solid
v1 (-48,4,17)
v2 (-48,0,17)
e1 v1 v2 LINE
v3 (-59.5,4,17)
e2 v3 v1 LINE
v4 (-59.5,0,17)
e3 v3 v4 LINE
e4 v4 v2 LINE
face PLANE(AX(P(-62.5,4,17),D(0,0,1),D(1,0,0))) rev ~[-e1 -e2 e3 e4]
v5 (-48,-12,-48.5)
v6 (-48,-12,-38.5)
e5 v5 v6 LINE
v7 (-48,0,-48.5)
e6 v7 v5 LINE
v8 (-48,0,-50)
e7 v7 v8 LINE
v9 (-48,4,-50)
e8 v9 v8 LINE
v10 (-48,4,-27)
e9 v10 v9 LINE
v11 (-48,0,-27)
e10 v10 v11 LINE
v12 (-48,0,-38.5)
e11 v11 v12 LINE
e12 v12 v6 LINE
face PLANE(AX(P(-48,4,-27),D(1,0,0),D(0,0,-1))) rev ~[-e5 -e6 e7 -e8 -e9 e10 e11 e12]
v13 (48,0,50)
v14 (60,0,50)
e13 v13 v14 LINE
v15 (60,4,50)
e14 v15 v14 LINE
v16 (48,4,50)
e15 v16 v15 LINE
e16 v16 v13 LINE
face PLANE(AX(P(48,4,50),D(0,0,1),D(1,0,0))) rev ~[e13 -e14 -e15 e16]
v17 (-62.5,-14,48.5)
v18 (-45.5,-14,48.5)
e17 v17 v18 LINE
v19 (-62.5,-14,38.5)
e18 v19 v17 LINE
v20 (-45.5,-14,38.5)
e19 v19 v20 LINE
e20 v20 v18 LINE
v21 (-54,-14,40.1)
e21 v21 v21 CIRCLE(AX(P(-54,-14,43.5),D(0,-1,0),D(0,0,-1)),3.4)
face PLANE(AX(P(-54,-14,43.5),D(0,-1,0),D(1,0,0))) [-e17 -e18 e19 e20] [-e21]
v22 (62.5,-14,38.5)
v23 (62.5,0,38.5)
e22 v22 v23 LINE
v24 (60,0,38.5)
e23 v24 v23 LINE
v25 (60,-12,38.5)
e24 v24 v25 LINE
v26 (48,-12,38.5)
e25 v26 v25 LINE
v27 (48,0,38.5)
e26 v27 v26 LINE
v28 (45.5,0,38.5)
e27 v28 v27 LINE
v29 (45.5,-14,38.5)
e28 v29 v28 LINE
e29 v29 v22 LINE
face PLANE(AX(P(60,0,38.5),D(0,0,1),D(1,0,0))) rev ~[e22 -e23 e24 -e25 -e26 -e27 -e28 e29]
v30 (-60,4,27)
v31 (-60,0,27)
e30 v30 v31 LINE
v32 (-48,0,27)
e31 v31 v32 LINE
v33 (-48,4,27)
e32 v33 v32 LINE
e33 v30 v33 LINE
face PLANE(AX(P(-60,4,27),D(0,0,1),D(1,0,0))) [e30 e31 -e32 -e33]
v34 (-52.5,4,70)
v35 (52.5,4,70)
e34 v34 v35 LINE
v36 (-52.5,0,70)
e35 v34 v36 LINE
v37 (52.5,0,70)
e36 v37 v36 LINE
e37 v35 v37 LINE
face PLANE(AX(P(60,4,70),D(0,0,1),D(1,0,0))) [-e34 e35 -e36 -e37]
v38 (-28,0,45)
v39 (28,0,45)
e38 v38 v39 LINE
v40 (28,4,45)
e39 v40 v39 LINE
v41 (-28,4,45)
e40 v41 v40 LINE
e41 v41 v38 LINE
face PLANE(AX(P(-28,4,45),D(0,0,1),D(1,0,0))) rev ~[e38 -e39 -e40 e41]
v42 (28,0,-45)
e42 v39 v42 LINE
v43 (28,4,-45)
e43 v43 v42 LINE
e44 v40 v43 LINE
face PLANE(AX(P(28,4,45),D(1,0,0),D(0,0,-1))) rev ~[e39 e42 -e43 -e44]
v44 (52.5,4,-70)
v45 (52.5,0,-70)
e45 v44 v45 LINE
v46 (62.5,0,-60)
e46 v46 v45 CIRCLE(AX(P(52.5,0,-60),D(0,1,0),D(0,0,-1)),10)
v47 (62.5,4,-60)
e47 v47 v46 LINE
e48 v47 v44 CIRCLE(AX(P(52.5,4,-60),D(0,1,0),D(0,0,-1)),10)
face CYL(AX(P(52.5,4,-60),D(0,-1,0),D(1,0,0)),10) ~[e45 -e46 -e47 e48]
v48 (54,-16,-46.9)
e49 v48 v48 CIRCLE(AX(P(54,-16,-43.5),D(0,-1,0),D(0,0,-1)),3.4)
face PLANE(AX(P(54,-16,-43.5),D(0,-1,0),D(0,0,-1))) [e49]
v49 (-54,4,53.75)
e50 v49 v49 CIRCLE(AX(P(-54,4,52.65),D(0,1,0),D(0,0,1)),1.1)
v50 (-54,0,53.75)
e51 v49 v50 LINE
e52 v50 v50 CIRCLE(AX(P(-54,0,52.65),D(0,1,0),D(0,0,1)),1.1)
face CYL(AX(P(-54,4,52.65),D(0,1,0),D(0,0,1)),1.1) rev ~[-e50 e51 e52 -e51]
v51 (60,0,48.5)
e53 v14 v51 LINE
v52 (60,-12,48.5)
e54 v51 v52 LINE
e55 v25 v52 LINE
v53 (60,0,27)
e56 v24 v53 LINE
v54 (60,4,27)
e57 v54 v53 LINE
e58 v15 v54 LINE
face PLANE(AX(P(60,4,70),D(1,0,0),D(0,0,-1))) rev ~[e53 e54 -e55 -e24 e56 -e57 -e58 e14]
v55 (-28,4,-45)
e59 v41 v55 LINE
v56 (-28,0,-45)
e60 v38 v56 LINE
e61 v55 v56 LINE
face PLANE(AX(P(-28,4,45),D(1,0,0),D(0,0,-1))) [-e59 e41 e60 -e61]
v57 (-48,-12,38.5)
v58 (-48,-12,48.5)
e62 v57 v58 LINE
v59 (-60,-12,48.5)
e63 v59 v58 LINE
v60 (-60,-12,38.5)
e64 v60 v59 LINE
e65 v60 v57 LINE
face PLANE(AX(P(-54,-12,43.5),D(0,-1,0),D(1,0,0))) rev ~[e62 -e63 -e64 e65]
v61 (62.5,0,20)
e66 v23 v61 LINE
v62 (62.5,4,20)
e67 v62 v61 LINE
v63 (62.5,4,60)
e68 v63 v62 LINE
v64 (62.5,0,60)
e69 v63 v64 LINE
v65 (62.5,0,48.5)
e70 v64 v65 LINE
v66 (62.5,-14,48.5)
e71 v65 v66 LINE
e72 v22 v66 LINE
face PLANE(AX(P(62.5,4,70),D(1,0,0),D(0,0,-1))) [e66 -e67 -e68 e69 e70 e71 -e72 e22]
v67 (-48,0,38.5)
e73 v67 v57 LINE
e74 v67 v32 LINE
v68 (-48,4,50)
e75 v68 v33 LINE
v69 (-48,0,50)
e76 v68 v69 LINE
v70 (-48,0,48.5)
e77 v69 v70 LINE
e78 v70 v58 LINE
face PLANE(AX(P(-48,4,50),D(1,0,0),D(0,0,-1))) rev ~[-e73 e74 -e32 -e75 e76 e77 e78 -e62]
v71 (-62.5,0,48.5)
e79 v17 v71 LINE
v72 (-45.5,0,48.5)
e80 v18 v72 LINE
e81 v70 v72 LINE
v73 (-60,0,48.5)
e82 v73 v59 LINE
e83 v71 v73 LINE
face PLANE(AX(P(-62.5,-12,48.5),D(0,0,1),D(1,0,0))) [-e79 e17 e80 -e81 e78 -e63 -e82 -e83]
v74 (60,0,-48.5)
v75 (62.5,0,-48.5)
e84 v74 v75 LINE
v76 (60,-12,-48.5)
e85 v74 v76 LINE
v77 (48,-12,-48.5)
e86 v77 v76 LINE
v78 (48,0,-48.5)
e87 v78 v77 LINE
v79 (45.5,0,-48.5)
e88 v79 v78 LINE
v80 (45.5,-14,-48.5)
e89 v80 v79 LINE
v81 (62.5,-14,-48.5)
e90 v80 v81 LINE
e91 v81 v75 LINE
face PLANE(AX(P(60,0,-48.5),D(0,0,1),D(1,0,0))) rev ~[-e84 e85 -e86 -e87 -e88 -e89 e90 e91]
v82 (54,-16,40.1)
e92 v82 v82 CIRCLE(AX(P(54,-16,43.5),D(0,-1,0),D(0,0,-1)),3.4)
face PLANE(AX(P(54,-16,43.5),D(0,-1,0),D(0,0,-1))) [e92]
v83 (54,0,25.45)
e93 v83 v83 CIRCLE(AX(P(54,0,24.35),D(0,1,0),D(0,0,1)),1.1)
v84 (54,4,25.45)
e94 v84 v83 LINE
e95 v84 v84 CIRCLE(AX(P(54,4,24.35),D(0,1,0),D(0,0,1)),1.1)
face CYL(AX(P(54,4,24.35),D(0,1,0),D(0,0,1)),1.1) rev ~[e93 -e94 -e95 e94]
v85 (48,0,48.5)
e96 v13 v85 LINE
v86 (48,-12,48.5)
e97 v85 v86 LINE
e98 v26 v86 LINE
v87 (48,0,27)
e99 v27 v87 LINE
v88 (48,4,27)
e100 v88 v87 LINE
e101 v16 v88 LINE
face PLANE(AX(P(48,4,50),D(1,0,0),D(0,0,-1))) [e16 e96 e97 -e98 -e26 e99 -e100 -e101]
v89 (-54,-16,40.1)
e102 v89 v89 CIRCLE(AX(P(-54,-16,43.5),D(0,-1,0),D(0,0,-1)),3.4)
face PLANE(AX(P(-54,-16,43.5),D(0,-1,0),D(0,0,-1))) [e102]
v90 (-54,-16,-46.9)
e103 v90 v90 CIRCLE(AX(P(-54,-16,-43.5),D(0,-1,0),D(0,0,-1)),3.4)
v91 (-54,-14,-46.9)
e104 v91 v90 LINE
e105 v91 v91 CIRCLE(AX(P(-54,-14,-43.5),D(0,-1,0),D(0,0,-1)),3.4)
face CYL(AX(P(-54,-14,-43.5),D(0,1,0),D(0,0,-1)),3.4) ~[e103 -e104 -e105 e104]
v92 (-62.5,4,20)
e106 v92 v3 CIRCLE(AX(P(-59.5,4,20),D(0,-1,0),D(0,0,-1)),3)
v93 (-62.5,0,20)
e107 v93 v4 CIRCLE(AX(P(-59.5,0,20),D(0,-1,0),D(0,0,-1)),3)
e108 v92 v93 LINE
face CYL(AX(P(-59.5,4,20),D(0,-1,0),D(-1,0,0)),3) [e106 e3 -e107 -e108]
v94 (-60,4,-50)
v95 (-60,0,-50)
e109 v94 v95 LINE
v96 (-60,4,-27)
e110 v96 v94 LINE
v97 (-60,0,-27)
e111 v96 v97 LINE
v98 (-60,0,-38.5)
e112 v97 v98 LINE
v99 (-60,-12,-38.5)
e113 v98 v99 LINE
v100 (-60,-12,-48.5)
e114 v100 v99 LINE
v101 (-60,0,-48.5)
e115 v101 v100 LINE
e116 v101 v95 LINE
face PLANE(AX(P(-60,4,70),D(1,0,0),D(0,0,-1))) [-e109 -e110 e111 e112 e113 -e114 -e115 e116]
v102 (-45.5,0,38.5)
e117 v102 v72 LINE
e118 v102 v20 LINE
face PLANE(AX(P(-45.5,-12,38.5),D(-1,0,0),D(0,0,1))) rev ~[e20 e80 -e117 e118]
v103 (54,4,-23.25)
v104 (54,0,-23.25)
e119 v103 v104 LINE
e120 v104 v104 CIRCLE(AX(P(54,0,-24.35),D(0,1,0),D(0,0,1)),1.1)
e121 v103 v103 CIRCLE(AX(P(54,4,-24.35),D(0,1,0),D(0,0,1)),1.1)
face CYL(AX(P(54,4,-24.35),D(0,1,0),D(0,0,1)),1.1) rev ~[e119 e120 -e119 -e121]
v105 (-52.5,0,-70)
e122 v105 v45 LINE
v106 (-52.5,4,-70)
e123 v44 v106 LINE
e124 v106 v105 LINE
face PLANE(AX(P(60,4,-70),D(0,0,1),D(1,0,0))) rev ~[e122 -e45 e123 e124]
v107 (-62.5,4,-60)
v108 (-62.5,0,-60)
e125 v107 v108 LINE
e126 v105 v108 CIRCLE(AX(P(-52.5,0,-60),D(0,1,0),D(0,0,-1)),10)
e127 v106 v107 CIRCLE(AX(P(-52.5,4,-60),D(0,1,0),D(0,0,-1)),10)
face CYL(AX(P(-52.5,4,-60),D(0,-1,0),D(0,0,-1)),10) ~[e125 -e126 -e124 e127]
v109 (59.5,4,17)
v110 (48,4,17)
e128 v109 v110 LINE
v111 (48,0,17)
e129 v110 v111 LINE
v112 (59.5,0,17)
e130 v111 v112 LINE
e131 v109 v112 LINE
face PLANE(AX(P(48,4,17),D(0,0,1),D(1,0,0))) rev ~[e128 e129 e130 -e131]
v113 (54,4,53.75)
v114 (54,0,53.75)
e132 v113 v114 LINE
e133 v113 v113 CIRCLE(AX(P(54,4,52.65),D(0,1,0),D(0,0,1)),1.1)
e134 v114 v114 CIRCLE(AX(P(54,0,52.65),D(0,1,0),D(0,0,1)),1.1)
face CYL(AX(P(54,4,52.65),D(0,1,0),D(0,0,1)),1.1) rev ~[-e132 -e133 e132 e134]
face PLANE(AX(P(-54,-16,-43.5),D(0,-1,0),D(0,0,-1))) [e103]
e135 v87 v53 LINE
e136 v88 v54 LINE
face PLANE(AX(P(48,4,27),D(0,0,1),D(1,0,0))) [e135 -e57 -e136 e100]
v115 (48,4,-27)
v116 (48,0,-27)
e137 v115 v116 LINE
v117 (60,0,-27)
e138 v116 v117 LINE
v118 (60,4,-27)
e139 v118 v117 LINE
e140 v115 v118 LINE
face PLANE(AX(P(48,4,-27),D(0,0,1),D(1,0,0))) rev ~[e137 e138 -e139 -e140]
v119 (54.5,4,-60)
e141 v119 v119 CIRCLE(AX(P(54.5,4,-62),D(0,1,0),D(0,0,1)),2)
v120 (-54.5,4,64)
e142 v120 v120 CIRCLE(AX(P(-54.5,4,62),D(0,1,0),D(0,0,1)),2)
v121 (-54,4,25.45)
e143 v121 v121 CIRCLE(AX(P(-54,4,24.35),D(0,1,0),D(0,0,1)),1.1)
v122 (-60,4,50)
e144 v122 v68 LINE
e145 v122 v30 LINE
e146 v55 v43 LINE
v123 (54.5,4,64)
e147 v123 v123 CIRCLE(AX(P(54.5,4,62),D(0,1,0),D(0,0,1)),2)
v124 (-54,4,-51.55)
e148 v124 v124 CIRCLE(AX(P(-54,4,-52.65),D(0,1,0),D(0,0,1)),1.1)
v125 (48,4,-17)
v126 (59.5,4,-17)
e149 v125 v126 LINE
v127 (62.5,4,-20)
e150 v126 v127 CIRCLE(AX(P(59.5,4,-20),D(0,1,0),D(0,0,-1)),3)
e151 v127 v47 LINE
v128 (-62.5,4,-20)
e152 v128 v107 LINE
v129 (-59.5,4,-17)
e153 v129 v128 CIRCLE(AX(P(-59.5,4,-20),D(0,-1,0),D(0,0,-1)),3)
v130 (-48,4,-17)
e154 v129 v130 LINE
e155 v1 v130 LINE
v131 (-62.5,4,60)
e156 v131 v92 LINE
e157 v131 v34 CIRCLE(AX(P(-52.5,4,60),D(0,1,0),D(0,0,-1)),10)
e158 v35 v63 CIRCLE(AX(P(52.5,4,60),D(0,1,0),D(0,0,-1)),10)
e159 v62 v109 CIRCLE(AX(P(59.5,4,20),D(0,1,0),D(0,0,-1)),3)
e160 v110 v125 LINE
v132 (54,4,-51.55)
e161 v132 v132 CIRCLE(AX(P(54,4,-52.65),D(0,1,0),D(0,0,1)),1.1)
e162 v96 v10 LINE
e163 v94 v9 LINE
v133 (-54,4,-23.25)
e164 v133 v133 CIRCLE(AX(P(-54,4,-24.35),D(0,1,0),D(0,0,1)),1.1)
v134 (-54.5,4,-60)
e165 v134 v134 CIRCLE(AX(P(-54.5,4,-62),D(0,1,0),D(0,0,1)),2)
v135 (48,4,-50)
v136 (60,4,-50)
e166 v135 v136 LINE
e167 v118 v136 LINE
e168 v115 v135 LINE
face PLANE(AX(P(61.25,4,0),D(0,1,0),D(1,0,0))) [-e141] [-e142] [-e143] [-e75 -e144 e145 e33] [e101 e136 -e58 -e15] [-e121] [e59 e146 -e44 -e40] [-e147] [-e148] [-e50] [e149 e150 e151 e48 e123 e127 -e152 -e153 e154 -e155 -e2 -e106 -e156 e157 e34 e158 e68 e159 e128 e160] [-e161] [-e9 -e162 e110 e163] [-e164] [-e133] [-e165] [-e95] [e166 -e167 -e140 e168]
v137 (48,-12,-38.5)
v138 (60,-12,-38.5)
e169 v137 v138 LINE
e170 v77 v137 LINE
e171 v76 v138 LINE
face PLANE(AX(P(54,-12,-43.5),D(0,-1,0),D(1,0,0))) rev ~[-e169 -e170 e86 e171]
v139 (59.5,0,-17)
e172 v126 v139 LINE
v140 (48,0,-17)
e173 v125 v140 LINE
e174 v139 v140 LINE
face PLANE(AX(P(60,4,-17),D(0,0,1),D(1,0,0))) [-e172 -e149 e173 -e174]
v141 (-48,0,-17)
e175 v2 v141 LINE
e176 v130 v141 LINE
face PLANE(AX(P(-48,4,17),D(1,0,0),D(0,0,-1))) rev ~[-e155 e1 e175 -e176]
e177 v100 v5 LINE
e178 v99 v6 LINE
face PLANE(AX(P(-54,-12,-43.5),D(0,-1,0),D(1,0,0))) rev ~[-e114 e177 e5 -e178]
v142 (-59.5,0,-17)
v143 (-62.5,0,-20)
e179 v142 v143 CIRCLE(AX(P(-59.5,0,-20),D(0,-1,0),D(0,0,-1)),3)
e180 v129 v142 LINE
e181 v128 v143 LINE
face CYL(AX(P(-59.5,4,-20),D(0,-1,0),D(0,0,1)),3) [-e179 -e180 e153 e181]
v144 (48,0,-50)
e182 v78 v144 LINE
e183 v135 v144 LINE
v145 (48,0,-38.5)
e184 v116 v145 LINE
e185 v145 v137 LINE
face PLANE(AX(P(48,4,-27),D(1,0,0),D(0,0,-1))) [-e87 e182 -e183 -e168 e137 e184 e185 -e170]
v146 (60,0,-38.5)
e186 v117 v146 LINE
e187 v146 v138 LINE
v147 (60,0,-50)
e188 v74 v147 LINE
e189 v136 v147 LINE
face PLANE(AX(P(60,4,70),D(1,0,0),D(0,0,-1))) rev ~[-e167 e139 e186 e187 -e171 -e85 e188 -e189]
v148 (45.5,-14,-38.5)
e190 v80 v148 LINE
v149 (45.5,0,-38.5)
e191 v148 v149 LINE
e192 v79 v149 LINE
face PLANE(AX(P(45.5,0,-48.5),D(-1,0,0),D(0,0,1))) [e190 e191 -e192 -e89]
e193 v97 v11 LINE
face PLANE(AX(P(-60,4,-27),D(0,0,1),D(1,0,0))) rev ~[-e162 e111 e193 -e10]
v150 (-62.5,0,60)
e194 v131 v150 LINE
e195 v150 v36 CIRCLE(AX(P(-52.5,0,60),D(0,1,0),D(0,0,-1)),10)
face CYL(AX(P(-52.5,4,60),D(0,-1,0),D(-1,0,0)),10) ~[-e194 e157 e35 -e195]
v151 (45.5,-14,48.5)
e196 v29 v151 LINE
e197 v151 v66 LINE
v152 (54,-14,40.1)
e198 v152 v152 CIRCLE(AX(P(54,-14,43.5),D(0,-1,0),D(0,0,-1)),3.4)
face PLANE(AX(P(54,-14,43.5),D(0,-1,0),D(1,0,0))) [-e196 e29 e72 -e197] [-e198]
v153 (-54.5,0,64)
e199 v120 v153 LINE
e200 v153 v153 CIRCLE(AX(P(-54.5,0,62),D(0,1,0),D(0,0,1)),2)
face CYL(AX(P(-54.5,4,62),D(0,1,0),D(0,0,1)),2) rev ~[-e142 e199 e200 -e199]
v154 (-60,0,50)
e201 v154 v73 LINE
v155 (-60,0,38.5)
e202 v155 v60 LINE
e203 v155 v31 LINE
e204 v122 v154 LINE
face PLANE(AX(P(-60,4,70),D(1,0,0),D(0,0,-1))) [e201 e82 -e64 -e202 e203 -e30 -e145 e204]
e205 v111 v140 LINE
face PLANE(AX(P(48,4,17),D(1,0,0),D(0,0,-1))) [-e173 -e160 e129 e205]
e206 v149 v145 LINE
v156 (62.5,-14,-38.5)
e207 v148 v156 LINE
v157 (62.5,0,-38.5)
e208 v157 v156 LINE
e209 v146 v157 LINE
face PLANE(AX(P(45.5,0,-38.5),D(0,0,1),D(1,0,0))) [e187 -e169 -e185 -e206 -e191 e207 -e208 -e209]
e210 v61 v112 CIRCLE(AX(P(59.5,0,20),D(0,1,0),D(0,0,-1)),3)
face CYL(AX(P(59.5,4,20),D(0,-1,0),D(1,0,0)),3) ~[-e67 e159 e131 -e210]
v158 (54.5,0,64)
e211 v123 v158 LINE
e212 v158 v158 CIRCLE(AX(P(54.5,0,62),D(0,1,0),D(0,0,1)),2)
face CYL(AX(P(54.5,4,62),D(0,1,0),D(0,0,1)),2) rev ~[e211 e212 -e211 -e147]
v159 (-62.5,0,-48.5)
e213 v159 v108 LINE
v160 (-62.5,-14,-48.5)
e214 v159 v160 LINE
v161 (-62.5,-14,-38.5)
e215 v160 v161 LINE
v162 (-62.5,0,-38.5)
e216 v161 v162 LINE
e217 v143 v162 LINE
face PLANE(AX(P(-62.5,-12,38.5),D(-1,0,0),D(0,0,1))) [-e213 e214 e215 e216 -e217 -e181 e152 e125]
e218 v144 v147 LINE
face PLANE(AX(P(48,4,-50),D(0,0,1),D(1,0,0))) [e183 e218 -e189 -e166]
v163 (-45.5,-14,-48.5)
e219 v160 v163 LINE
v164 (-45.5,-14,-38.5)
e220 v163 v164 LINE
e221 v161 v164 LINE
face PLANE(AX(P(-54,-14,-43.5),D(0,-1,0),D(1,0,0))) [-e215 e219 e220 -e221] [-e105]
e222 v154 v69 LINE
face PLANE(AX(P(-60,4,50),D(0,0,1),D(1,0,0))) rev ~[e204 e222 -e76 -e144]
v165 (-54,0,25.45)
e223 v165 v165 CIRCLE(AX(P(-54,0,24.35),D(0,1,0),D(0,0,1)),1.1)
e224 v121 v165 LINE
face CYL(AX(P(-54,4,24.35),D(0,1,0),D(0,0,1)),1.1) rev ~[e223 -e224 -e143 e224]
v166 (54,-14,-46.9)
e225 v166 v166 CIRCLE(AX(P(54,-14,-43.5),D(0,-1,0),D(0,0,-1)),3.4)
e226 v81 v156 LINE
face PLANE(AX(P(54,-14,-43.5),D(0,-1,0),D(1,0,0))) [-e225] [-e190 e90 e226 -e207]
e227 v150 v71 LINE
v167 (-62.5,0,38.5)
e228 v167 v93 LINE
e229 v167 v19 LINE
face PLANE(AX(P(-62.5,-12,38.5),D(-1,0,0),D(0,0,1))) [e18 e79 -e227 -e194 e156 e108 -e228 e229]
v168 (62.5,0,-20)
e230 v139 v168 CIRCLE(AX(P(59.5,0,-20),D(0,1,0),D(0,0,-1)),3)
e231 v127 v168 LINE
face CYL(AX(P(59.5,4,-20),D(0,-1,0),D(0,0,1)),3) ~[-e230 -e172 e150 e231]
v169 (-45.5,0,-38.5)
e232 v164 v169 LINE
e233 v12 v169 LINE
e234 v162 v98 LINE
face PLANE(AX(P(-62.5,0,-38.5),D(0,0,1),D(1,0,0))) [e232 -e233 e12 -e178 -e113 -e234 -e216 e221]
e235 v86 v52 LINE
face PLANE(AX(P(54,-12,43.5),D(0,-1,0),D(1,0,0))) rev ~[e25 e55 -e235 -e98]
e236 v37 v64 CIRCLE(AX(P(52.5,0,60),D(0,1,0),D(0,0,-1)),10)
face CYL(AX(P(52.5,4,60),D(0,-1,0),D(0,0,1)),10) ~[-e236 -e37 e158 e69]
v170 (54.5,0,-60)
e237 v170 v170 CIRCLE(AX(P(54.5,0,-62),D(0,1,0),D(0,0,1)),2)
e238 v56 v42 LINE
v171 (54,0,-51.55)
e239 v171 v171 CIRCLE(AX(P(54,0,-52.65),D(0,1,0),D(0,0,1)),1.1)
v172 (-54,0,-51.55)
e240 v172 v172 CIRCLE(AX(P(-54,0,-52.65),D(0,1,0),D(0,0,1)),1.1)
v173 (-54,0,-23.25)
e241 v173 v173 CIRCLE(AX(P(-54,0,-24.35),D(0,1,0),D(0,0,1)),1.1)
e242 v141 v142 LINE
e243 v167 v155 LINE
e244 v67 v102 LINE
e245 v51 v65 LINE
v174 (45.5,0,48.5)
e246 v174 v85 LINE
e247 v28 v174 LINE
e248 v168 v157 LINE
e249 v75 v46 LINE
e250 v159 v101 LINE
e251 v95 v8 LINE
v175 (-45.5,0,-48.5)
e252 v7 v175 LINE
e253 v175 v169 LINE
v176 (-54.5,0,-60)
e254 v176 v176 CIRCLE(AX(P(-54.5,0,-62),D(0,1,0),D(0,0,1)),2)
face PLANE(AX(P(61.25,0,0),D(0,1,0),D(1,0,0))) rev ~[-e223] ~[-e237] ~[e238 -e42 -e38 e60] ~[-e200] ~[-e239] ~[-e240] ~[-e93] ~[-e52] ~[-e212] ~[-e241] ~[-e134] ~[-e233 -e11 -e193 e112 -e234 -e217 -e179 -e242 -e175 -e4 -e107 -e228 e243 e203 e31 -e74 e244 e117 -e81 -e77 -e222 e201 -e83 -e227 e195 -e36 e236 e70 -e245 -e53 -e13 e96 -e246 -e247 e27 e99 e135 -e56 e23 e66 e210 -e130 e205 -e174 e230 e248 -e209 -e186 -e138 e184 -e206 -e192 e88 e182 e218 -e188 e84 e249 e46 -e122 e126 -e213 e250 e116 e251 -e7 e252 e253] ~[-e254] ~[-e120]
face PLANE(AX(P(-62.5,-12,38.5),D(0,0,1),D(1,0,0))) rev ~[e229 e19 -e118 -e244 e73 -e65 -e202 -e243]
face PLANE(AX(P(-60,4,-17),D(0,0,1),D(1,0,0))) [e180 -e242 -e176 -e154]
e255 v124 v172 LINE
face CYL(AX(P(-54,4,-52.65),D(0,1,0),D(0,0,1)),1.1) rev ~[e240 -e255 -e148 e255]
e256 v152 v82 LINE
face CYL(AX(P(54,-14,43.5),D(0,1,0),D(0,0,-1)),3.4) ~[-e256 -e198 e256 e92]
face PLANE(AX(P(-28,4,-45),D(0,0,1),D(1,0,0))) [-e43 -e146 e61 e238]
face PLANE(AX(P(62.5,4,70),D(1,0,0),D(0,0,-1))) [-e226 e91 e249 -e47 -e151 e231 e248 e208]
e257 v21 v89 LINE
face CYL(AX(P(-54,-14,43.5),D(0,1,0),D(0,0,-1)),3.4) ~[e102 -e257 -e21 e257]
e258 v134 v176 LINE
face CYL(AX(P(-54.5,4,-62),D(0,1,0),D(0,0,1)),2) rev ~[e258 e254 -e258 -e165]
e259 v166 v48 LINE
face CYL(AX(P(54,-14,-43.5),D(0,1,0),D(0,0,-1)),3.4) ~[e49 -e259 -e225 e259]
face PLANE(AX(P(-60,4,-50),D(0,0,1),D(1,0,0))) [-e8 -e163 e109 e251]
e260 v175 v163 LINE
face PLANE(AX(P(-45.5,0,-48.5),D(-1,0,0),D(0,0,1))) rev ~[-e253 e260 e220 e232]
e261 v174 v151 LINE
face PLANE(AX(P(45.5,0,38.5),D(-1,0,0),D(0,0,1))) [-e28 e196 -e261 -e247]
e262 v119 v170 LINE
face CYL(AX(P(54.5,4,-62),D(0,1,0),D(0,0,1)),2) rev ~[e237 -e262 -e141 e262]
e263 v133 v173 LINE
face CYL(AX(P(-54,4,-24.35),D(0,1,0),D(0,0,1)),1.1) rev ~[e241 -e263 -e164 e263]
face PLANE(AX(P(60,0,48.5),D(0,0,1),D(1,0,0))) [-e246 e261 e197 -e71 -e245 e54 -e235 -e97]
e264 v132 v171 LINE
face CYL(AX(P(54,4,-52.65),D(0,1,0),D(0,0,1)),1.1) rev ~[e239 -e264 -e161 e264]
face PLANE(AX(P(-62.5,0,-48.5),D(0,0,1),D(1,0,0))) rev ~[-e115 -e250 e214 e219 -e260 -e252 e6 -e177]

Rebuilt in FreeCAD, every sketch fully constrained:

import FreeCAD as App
import Part
import Sketcher

V = App.Vector
Q = App.Units.Quantity


def edges_at(feature, points):
    """Names of the edges that pass closest to the given points."""
    edges = feature.Shape.Edges
    near = lambda p: min(range(len(edges)), key=lambda i: edges[i].distToShape(Part.Vertex(*p))[0])
    return sorted({f"Edge{near(p) + 1}" for p in points})


def add_polygon(sketch, points):
    """Adds a closed chain of lines whose ends are joined by coincident constraints."""
    first, n = sketch.GeometryCount, len(points)
    for a, b in zip(points, points[1:] + points[:1]):
        sketch.addGeometry(Part.LineSegment(App.Vector(*a, 0), App.Vector(*b, 0)), False)
    for i in range(n):
        sketch.addConstraint(Sketcher.Constraint("Coincident", first + i, 2, first + (i + 1) % n, 1))

doc = App.newDocument("Part")
body = doc.addObject("PartDesign::Body", "Body")

sketch1 = body.newObject("Sketcher::SketchObject", "Sketch")
sketch1.AttachmentSupport = (doc.getObject("XZ_Plane"), [""])
sketch1.MapMode = "FlatFace"
add_polygon(sketch1, [(-60, -70), (-60, 70), (60, 70), (60, -70)])
sketch1.addConstraint(Sketcher.Constraint("Vertical", 0))
sketch1.addConstraint(Sketcher.Constraint("Horizontal", 1))
sketch1.addConstraint(Sketcher.Constraint("Vertical", 2))
sketch1.addConstraint(Sketcher.Constraint("Horizontal", 3))
sketch1.addConstraint(Sketcher.Constraint("Symmetric", 0, 2, 2, 2, -1, 1))
sketch1.addConstraint(Sketcher.Constraint("DistanceX", 1, 1, 1, 2, Q("120 mm")))
sketch1.addConstraint(Sketcher.Constraint("DistanceY", 0, 1, 0, 2, Q("140 mm")))
pad1 = body.newObject("PartDesign::Pad", "Pad")
pad1.Profile = sketch1
pad1.Length = 4
pad1.Reversed = True

sketch2 = body.newObject("Sketcher::SketchObject", "Sketch001")
sketch2.AttachmentSupport = (doc.getObject("XZ_Plane"), [""])
sketch2.MapMode = "FlatFace"
sketch2.AttachmentOffset = App.Placement(V(0, 0, -4), App.Rotation())
add_polygon(sketch2, [(48, -50), (48, -27), (60, -27), (60, -50)])
add_polygon(sketch2, [(-60, -50), (-60, -27), (-48, -27), (-48, -50)])
add_polygon(sketch2, [(48, 27), (48, 50), (60, 50), (60, 27)])
add_polygon(sketch2, [(-60, 27), (-60, 50), (-48, 50), (-48, 27)])
add_polygon(sketch2, [(-60, -17), (-60, 17), (-48, 17), (-48, -17)])
add_polygon(sketch2, [(48, -17), (48, 17), (60, 17), (60, -17)])
sketch2.addGeometry(Part.Circle(V(-54, -52.6, 0), V(0, 0, 1), 1.1), False)
sketch2.addGeometry(Part.Circle(V(-54, -24.4, 0), V(0, 0, 1), 1.1), False)
sketch2.addGeometry(Part.Circle(V(-54, 24.4, 0), V(0, 0, 1), 1.1), False)
sketch2.addGeometry(Part.Circle(V(-54, 52.6, 0), V(0, 0, 1), 1.1), False)
sketch2.addGeometry(Part.Circle(V(54, -52.6, 0), V(0, 0, 1), 1.1), False)
sketch2.addGeometry(Part.Circle(V(54, -24.4, 0), V(0, 0, 1), 1.1), False)
sketch2.addGeometry(Part.Circle(V(54, 24.4, 0), V(0, 0, 1), 1.1), False)
sketch2.addGeometry(Part.Circle(V(54, 52.6, 0), V(0, 0, 1), 1.1), False)
sketch2.addGeometry(Part.Circle(V(-54.5, -62, 0), V(0, 0, 1), 2), False)
sketch2.addGeometry(Part.Circle(V(54.5, -62, 0), V(0, 0, 1), 2), False)
sketch2.addGeometry(Part.Circle(V(54.5, 62, 0), V(0, 0, 1), 2), False)
sketch2.addGeometry(Part.Circle(V(-54.5, 62, 0), V(0, 0, 1), 2), False)
sketch2.addConstraint(Sketcher.Constraint("Vertical", 0))
sketch2.addConstraint(Sketcher.Constraint("Horizontal", 1))
sketch2.addConstraint(Sketcher.Constraint("Vertical", 2))
sketch2.addConstraint(Sketcher.Constraint("Horizontal", 3))
sketch2.addConstraint(Sketcher.Constraint("Vertical", 4))
sketch2.addConstraint(Sketcher.Constraint("Horizontal", 5))
sketch2.addConstraint(Sketcher.Constraint("Vertical", 6))
sketch2.addConstraint(Sketcher.Constraint("Horizontal", 7))
sketch2.addConstraint(Sketcher.Constraint("Vertical", 8))
sketch2.addConstraint(Sketcher.Constraint("Horizontal", 9))
sketch2.addConstraint(Sketcher.Constraint("Vertical", 10))
sketch2.addConstraint(Sketcher.Constraint("Horizontal", 11))
sketch2.addConstraint(Sketcher.Constraint("Vertical", 12))
sketch2.addConstraint(Sketcher.Constraint("Horizontal", 13))
sketch2.addConstraint(Sketcher.Constraint("Vertical", 14))
sketch2.addConstraint(Sketcher.Constraint("Horizontal", 15))
sketch2.addConstraint(Sketcher.Constraint("Vertical", 16))
sketch2.addConstraint(Sketcher.Constraint("Horizontal", 17))
sketch2.addConstraint(Sketcher.Constraint("Vertical", 18))
sketch2.addConstraint(Sketcher.Constraint("Horizontal", 19))
sketch2.addConstraint(Sketcher.Constraint("Vertical", 20))
sketch2.addConstraint(Sketcher.Constraint("Horizontal", 21))
sketch2.addConstraint(Sketcher.Constraint("Vertical", 22))
sketch2.addConstraint(Sketcher.Constraint("Horizontal", 23))
sketch2.addConstraint(Sketcher.Constraint("Equal", 24, 25))
sketch2.addConstraint(Sketcher.Constraint("Equal", 25, 26))
sketch2.addConstraint(Sketcher.Constraint("Equal", 26, 27))
sketch2.addConstraint(Sketcher.Constraint("Equal", 27, 28))
sketch2.addConstraint(Sketcher.Constraint("Equal", 28, 29))
sketch2.addConstraint(Sketcher.Constraint("Equal", 29, 30))
sketch2.addConstraint(Sketcher.Constraint("Equal", 30, 31))
sketch2.addConstraint(Sketcher.Constraint("Equal", 32, 33))
sketch2.addConstraint(Sketcher.Constraint("Equal", 33, 34))
sketch2.addConstraint(Sketcher.Constraint("Equal", 34, 35))
sketch2.addConstraint(Sketcher.Constraint("Symmetric", 27, 3, 28, 3, -1, 1))
sketch2.addConstraint(Sketcher.Constraint("Symmetric", 26, 3, 29, 3, -1, 1))
sketch2.addConstraint(Sketcher.Constraint("Symmetric", 25, 3, 30, 3, -1, 1))
sketch2.addConstraint(Sketcher.Constraint("Symmetric", 24, 3, 31, 3, -1, 1))
sketch2.addConstraint(Sketcher.Constraint("Symmetric", 32, 3, 34, 3, -1, 1))
sketch2.addConstraint(Sketcher.Constraint("Symmetric", 33, 3, 35, 3, -1, 1))
sketch2.addConstraint(Sketcher.Constraint("Symmetric", 6, 2, 8, 2, -1, 1))
sketch2.addConstraint(Sketcher.Constraint("Symmetric", 4, 2, 10, 2, -1, 1))
sketch2.addConstraint(Sketcher.Constraint("Symmetric", 2, 2, 12, 2, -1, 1))
sketch2.addConstraint(Sketcher.Constraint("Symmetric", 0, 2, 14, 2, -1, 1))
sketch2.addConstraint(Sketcher.Constraint("Symmetric", 18, 2, 20, 2, -1, 1))
sketch2.addConstraint(Sketcher.Constraint("Symmetric", 16, 2, 22, 2, -1, 1))
sketch2.addConstraint(Sketcher.Constraint("Symmetric", 24, 3, 28, 3, -2))
sketch2.addConstraint(Sketcher.Constraint("Symmetric", 25, 3, 29, 3, -2))
sketch2.addConstraint(Sketcher.Constraint("Symmetric", 32, 3, 33, 3, -2))
sketch2.addConstraint(Sketcher.Constraint("Symmetric", 1, 2, 4, 2, -2))
sketch2.addConstraint(Sketcher.Constraint("Symmetric", 3, 2, 6, 2, -2))
sketch2.addConstraint(Sketcher.Constraint("Horizontal", 17, 2, 20, 2))
sketch2.addConstraint(Sketcher.Constraint("Vertical", 24, 3, 25, 3))
sketch2.addConstraint(Sketcher.Constraint("Vertical", 15, 2, 16, 2))
sketch2.addConstraint(Sketcher.Constraint("Vertical", 14, 2, 17, 2))
sketch2.addConstraint(Sketcher.Constraint("Diameter", 32, Q("4 mm")))
sketch2.addConstraint(Sketcher.Constraint("Diameter", 24, Q("2.2 mm")))
sketch2.addConstraint(Sketcher.Constraint("DistanceX", 1, 1, 1, 2, Q("12 mm")))
sketch2.addConstraint(Sketcher.Constraint("DistanceY", 0, 1, 0, 2, Q("23 mm")))
sketch2.addConstraint(Sketcher.Constraint("DistanceY", 16, 1, 16, 2, Q("34 mm")))
sketch2.addConstraint(Sketcher.Constraint("DistanceX", 24, 3, -1, 1, Q("54 mm")))
sketch2.addConstraint(Sketcher.Constraint("DistanceY", 32, 3, -1, 1, Q("62 mm")))
sketch2.addConstraint(Sketcher.Constraint("DistanceX", -1, 1, 0, 2, Q("48 mm")))
sketch2.addConstraint(Sketcher.Constraint("DistanceY", 0, 2, -1, 1, Q("27 mm")))
sketch2.addConstraint(Sketcher.Constraint("DistanceY", 24, 3, 26, 3, Q("77 mm")))
sketch2.addConstraint(Sketcher.Constraint("DistanceX", 32, 3, 33, 3, Q("109 mm")))
sketch2.addConstraint(Sketcher.Constraint("DistanceY", 24, 3, 25, 3, Q("28.3 mm")))
pocket1 = body.newObject("PartDesign::Pocket", "Pocket")
pocket1.Profile = sketch2
pocket1.Type = "ThroughAll"
pocket1.Reversed = True

sketch3 = body.newObject("Sketcher::SketchObject", "Sketch002")
sketch3.AttachmentSupport = (doc.getObject("XZ_Plane"), [""])
sketch3.MapMode = "FlatFace"
sketch3.AttachmentOffset = App.Placement(V(0, 0, -4), App.Rotation())
add_polygon(sketch3, [(60, -70), (60, 70), (62.5, 70), (62.5, -70)])
add_polygon(sketch3, [(-62.5, -70), (-62.5, 70), (-60, 70), (-60, -70)])
sketch3.addConstraint(Sketcher.Constraint("Vertical", 0))
sketch3.addConstraint(Sketcher.Constraint("Horizontal", 1))
sketch3.addConstraint(Sketcher.Constraint("Vertical", 2))
sketch3.addConstraint(Sketcher.Constraint("Horizontal", 3))
sketch3.addConstraint(Sketcher.Constraint("Vertical", 4))
sketch3.addConstraint(Sketcher.Constraint("Horizontal", 5))
sketch3.addConstraint(Sketcher.Constraint("Vertical", 6))
sketch3.addConstraint(Sketcher.Constraint("Horizontal", 7))
sketch3.addConstraint(Sketcher.Constraint("Symmetric", 2, 2, 4, 2, -1, 1))
sketch3.addConstraint(Sketcher.Constraint("Symmetric", 0, 2, 6, 2, -1, 1))
sketch3.addConstraint(Sketcher.Constraint("Horizontal", 1, 2, 4, 2))
sketch3.addConstraint(Sketcher.Constraint("DistanceY", 0, 1, 0, 2, Q("140 mm")))
sketch3.addConstraint(Sketcher.Constraint("DistanceX", 1, 1, 1, 2, Q("2.5 mm")))
sketch3.addConstraint(Sketcher.Constraint("DistanceX", -1, 1, 0, 2, Q("60 mm")))
pad2 = body.newObject("PartDesign::Pad", "Pad001")
pad2.Profile = sketch3
pad2.Length = 4

sketch4 = body.newObject("Sketcher::SketchObject", "Sketch003")
sketch4.AttachmentSupport = (doc.getObject("XZ_Plane"), [""])
sketch4.MapMode = "FlatFace"
add_polygon(sketch4, [(45.5, 48.5), (45.5, 38.5), (48, 38.5), (48, 48.5)])
add_polygon(sketch4, [(60, 48.5), (60, 38.5), (62.5, 38.5), (62.5, 48.5)])
add_polygon(sketch4, [(-62.5, 48.5), (-62.5, 38.5), (-60, 38.5), (-60, 48.5)])
add_polygon(sketch4, [(-48, 48.5), (-48, 38.5), (-45.5, 38.5), (-45.5, 48.5)])
add_polygon(sketch4, [(-62.5, -38.5), (-62.5, -48.5), (-60, -48.5), (-60, -38.5)])
add_polygon(sketch4, [(-48, -38.5), (-48, -48.5), (-45.5, -48.5), (-45.5, -38.5)])
add_polygon(sketch4, [(45.5, -38.5), (45.5, -48.5), (48, -48.5), (48, -38.5)])
add_polygon(sketch4, [(60, -38.5), (60, -48.5), (62.5, -48.5), (62.5, -38.5)])
sketch4.addConstraint(Sketcher.Constraint("Vertical", 0))
sketch4.addConstraint(Sketcher.Constraint("Horizontal", 1))
sketch4.addConstraint(Sketcher.Constraint("Vertical", 2))
sketch4.addConstraint(Sketcher.Constraint("Horizontal", 3))
sketch4.addConstraint(Sketcher.Constraint("Vertical", 4))
sketch4.addConstraint(Sketcher.Constraint("Horizontal", 5))
sketch4.addConstraint(Sketcher.Constraint("Vertical", 6))
sketch4.addConstraint(Sketcher.Constraint("Horizontal", 7))
sketch4.addConstraint(Sketcher.Constraint("Vertical", 8))
sketch4.addConstraint(Sketcher.Constraint("Horizontal", 9))
sketch4.addConstraint(Sketcher.Constraint("Vertical", 10))
sketch4.addConstraint(Sketcher.Constraint("Horizontal", 11))
sketch4.addConstraint(Sketcher.Constraint("Vertical", 12))
sketch4.addConstraint(Sketcher.Constraint("Horizontal", 13))
sketch4.addConstraint(Sketcher.Constraint("Vertical", 14))
sketch4.addConstraint(Sketcher.Constraint("Horizontal", 15))
sketch4.addConstraint(Sketcher.Constraint("Vertical", 16))
sketch4.addConstraint(Sketcher.Constraint("Horizontal", 17))
sketch4.addConstraint(Sketcher.Constraint("Vertical", 18))
sketch4.addConstraint(Sketcher.Constraint("Horizontal", 19))
sketch4.addConstraint(Sketcher.Constraint("Vertical", 20))
sketch4.addConstraint(Sketcher.Constraint("Horizontal", 21))
sketch4.addConstraint(Sketcher.Constraint("Vertical", 22))
sketch4.addConstraint(Sketcher.Constraint("Horizontal", 23))
sketch4.addConstraint(Sketcher.Constraint("Vertical", 24))
sketch4.addConstraint(Sketcher.Constraint("Horizontal", 25))
sketch4.addConstraint(Sketcher.Constraint("Vertical", 26))
sketch4.addConstraint(Sketcher.Constraint("Horizontal", 27))
sketch4.addConstraint(Sketcher.Constraint("Vertical", 28))
sketch4.addConstraint(Sketcher.Constraint("Horizontal", 29))
sketch4.addConstraint(Sketcher.Constraint("Vertical", 30))
sketch4.addConstraint(Sketcher.Constraint("Horizontal", 31))
sketch4.addConstraint(Sketcher.Constraint("Symmetric", 6, 2, 16, 2, -1, 1))
sketch4.addConstraint(Sketcher.Constraint("Symmetric", 4, 2, 18, 2, -1, 1))
sketch4.addConstraint(Sketcher.Constraint("Symmetric", 2, 2, 20, 2, -1, 1))
sketch4.addConstraint(Sketcher.Constraint("Symmetric", 0, 2, 22, 2, -1, 1))
sketch4.addConstraint(Sketcher.Constraint("Symmetric", 14, 2, 24, 2, -1, 1))
sketch4.addConstraint(Sketcher.Constraint("Symmetric", 12, 2, 26, 2, -1, 1))
sketch4.addConstraint(Sketcher.Constraint("Symmetric", 10, 2, 28, 2, -1, 1))
sketch4.addConstraint(Sketcher.Constraint("Symmetric", 8, 2, 30, 2, -1, 1))
sketch4.addConstraint(Sketcher.Constraint("Symmetric", 5, 2, 8, 2, -2))
sketch4.addConstraint(Sketcher.Constraint("Symmetric", 7, 2, 10, 2, -2))
sketch4.addConstraint(Sketcher.Constraint("Symmetric", 1, 2, 12, 2, -2))
sketch4.addConstraint(Sketcher.Constraint("Symmetric", 3, 2, 14, 2, -2))
sketch4.addConstraint(Sketcher.Constraint("Horizontal", 1, 2, 4, 2))
sketch4.addConstraint(Sketcher.Constraint("Horizontal", 3, 2, 6, 2))
sketch4.addConstraint(Sketcher.Constraint("Equal", 3, 5))
sketch4.addConstraint(Sketcher.Constraint("DistanceY", 0, 2, 0, 1, Q("10 mm")))
sketch4.addConstraint(Sketcher.Constraint("DistanceX", 1, 1, 1, 2, Q("2.5 mm")))
sketch4.addConstraint(Sketcher.Constraint("DistanceX", -1, 1, 1, 2, Q("48 mm")))
sketch4.addConstraint(Sketcher.Constraint("DistanceX", -1, 1, 4, 2, Q("60 mm")))
sketch4.addConstraint(Sketcher.Constraint("DistanceY", 16, 2, 8, 2, Q("87 mm")))
pad3 = body.newObject("PartDesign::Pad", "Pad002")
pad3.Profile = sketch4
pad3.Length = 12

sketch5 = body.newObject("Sketcher::SketchObject", "Sketch004")
sketch5.AttachmentSupport = (doc.getObject("XZ_Plane"), [""])
sketch5.MapMode = "FlatFace"
sketch5.AttachmentOffset = App.Placement(V(0, 0, 12), App.Rotation())
add_polygon(sketch5, [(-62, 48), (-62, 38), (-46, 38), (-46, 48)])
add_polygon(sketch5, [(-62, -38), (-62, -48), (-46, -48), (-46, -38)])
add_polygon(sketch5, [(46, -38), (46, -48), (62, -48), (62, -38)])
add_polygon(sketch5, [(46, 48), (46, 38), (62, 38), (62, 48)])
sketch5.addConstraint(Sketcher.Constraint("Vertical", 0))
sketch5.addConstraint(Sketcher.Constraint("Horizontal", 1))
sketch5.addConstraint(Sketcher.Constraint("Vertical", 2))
sketch5.addConstraint(Sketcher.Constraint("Horizontal", 3))
sketch5.addConstraint(Sketcher.Constraint("Vertical", 4))
sketch5.addConstraint(Sketcher.Constraint("Horizontal", 5))
sketch5.addConstraint(Sketcher.Constraint("Vertical", 6))
sketch5.addConstraint(Sketcher.Constraint("Horizontal", 7))
sketch5.addConstraint(Sketcher.Constraint("Vertical", 8))
sketch5.addConstraint(Sketcher.Constraint("Horizontal", 9))
sketch5.addConstraint(Sketcher.Constraint("Vertical", 10))
sketch5.addConstraint(Sketcher.Constraint("Horizontal", 11))
sketch5.addConstraint(Sketcher.Constraint("Vertical", 12))
sketch5.addConstraint(Sketcher.Constraint("Horizontal", 13))
sketch5.addConstraint(Sketcher.Constraint("Vertical", 14))
sketch5.addConstraint(Sketcher.Constraint("Horizontal", 15))
sketch5.addConstraint(Sketcher.Constraint("Symmetric", 2, 2, 8, 2, -1, 1))
sketch5.addConstraint(Sketcher.Constraint("Symmetric", 0, 2, 10, 2, -1, 1))
sketch5.addConstraint(Sketcher.Constraint("Symmetric", 6, 2, 12, 2, -1, 1))
sketch5.addConstraint(Sketcher.Constraint("Symmetric", 4, 2, 14, 2, -1, 1))
sketch5.addConstraint(Sketcher.Constraint("Symmetric", 5, 2, 8, 2, -2))
sketch5.addConstraint(Sketcher.Constraint("Symmetric", 7, 2, 10, 2, -2))
sketch5.addConstraint(Sketcher.Constraint("DistanceX", 1, 1, 1, 2, Q("17 mm")))
sketch5.addConstraint(Sketcher.Constraint("DistanceY", 0, 2, 0, 1, Q("10 mm")))
sketch5.addConstraint(Sketcher.Constraint("DistanceY", 4, 2, 0, 2, Q("87 mm")))
sketch5.addConstraint(Sketcher.Constraint("DistanceX", 5, 2, 8, 2, Q("91 mm")))
pad4 = body.newObject("PartDesign::Pad", "Pad003")
pad4.Profile = sketch5
pad4.Length = 2

sketch6 = body.newObject("Sketcher::SketchObject", "Sketch005")
sketch6.AttachmentSupport = (doc.getObject("XZ_Plane"), [""])
sketch6.MapMode = "FlatFace"
sketch6.AttachmentOffset = App.Placement(V(0, 0, 14), App.Rotation())
sketch6.addGeometry(Part.Circle(V(54, 43.5, 0), V(0, 0, 1), 3.4), False)
sketch6.addGeometry(Part.Circle(V(-54, 43.5, 0), V(0, 0, 1), 3.4), False)
sketch6.addGeometry(Part.Circle(V(-54, -43.5, 0), V(0, 0, 1), 3.4), False)
sketch6.addGeometry(Part.Circle(V(54, -43.5, 0), V(0, 0, 1), 3.4), False)
sketch6.addConstraint(Sketcher.Constraint("Equal", 0, 1))
sketch6.addConstraint(Sketcher.Constraint("Equal", 1, 2))
sketch6.addConstraint(Sketcher.Constraint("Equal", 2, 3))
sketch6.addConstraint(Sketcher.Constraint("Symmetric", 0, 3, 2, 3, -1, 1))
sketch6.addConstraint(Sketcher.Constraint("Symmetric", 1, 3, 3, 3, -1, 1))
sketch6.addConstraint(Sketcher.Constraint("Symmetric", 0, 3, 1, 3, -2))
sketch6.addConstraint(Sketcher.Constraint("Diameter", 0, Q("6.8 mm")))
sketch6.addConstraint(Sketcher.Constraint("DistanceX", -1, 1, 0, 3, Q("54 mm")))
sketch6.addConstraint(Sketcher.Constraint("DistanceY", 2, 3, 1, 3, Q("87 mm")))
pad5 = body.newObject("PartDesign::Pad", "Pad004")
pad5.Profile = sketch6
pad5.Length = 2

sketch7 = body.newObject("Sketcher::SketchObject", "Sketch006")
sketch7.AttachmentSupport = (doc.getObject("XZ_Plane"), [""])
sketch7.MapMode = "FlatFace"
sketch7.AttachmentOffset = App.Placement(V(0, 0, -4), App.Rotation())
add_polygon(sketch7, [(60, -17), (60, 17), (62.5, 17), (62.5, -17)])
add_polygon(sketch7, [(-62.5, -17), (-62.5, 17), (-60, 17), (-60, -17)])
sketch7.addConstraint(Sketcher.Constraint("Vertical", 0))
sketch7.addConstraint(Sketcher.Constraint("Horizontal", 1))
sketch7.addConstraint(Sketcher.Constraint("Vertical", 2))
sketch7.addConstraint(Sketcher.Constraint("Horizontal", 3))
sketch7.addConstraint(Sketcher.Constraint("Vertical", 4))
sketch7.addConstraint(Sketcher.Constraint("Horizontal", 5))
sketch7.addConstraint(Sketcher.Constraint("Vertical", 6))
sketch7.addConstraint(Sketcher.Constraint("Horizontal", 7))
sketch7.addConstraint(Sketcher.Constraint("Symmetric", 2, 2, 4, 2, -1, 1))
sketch7.addConstraint(Sketcher.Constraint("Symmetric", 0, 2, 6, 2, -1, 1))
sketch7.addConstraint(Sketcher.Constraint("Horizontal", 1, 2, 4, 2))
sketch7.addConstraint(Sketcher.Constraint("DistanceY", 0, 1, 0, 2, Q("34 mm")))
sketch7.addConstraint(Sketcher.Constraint("DistanceX", 1, 1, 1, 2, Q("2.5 mm")))
sketch7.addConstraint(Sketcher.Constraint("DistanceX", -1, 1, 0, 2, Q("60 mm")))
pocket2 = body.newObject("PartDesign::Pocket", "Pocket001")
pocket2.Profile = sketch7
pocket2.Type = "ThroughAll"
pocket2.Reversed = True
doc.recompute()

fillet = body.newObject("PartDesign::Fillet", "Fillet")
fillet.Base = (pocket2, edges_at(pocket2, [(62.5, 2, -70)]))
fillet.Radius = 10
doc.recompute()

fillet2 = body.newObject("PartDesign::Fillet", "Fillet001")
fillet2.Base = (fillet, edges_at(fillet, [(-62.5, 2, -70)]))
fillet2.Radius = 10
doc.recompute()

fillet3 = body.newObject("PartDesign::Fillet", "Fillet002")
fillet3.Base = (fillet2, edges_at(fillet2, [(-62.5, 2, 70)]))
fillet3.Radius = 10
doc.recompute()

fillet4 = body.newObject("PartDesign::Fillet", "Fillet003")
fillet4.Base = (fillet3, edges_at(fillet3, [(62.5, 2, 70)]))
fillet4.Radius = 10
doc.recompute()

fillet5 = body.newObject("PartDesign::Fillet", "Fillet004")
fillet5.Base = (fillet4, edges_at(fillet4, [(62.5, 2, -17)]))
fillet5.Radius = 3
doc.recompute()

fillet6 = body.newObject("PartDesign::Fillet", "Fillet005")
fillet6.Base = (fillet5, edges_at(fillet5, [(-62.5, 2, 17)]))
fillet6.Radius = 3
doc.recompute()

fillet7 = body.newObject("PartDesign::Fillet", "Fillet006")
fillet7.Base = (fillet6, edges_at(fillet6, [(62.5, 2, 17)]))
fillet7.Radius = 3
doc.recompute()

fillet8 = body.newObject("PartDesign::Fillet", "Fillet007")
fillet8.Base = (fillet7, edges_at(fillet7, [(-62.5, 2, -17)]))
fillet8.Radius = 3

sketch8 = body.newObject("Sketcher::SketchObject", "Sketch007")
sketch8.AttachmentSupport = (doc.getObject("XZ_Plane"), [""])
sketch8.MapMode = "FlatFace"
sketch8.AttachmentOffset = App.Placement(V(0, 0, -4), App.Rotation())
add_polygon(sketch8, [(-28, -45), (-28, 45), (28, 45), (28, -45)])
sketch8.addConstraint(Sketcher.Constraint("Vertical", 0))
sketch8.addConstraint(Sketcher.Constraint("Horizontal", 1))
sketch8.addConstraint(Sketcher.Constraint("Vertical", 2))
sketch8.addConstraint(Sketcher.Constraint("Horizontal", 3))
sketch8.addConstraint(Sketcher.Constraint("Symmetric", 0, 2, 2, 2, -1, 1))
sketch8.addConstraint(Sketcher.Constraint("DistanceX", 1, 1, 1, 2, Q("56 mm")))
sketch8.addConstraint(Sketcher.Constraint("DistanceY", 0, 1, 0, 2, Q("90 mm")))
pocket3 = body.newObject("PartDesign::Pocket", "Pocket002")
pocket3.Profile = sketch8
pocket3.Type = "ThroughAll"
pocket3.Reversed = True

doc.recompute()
